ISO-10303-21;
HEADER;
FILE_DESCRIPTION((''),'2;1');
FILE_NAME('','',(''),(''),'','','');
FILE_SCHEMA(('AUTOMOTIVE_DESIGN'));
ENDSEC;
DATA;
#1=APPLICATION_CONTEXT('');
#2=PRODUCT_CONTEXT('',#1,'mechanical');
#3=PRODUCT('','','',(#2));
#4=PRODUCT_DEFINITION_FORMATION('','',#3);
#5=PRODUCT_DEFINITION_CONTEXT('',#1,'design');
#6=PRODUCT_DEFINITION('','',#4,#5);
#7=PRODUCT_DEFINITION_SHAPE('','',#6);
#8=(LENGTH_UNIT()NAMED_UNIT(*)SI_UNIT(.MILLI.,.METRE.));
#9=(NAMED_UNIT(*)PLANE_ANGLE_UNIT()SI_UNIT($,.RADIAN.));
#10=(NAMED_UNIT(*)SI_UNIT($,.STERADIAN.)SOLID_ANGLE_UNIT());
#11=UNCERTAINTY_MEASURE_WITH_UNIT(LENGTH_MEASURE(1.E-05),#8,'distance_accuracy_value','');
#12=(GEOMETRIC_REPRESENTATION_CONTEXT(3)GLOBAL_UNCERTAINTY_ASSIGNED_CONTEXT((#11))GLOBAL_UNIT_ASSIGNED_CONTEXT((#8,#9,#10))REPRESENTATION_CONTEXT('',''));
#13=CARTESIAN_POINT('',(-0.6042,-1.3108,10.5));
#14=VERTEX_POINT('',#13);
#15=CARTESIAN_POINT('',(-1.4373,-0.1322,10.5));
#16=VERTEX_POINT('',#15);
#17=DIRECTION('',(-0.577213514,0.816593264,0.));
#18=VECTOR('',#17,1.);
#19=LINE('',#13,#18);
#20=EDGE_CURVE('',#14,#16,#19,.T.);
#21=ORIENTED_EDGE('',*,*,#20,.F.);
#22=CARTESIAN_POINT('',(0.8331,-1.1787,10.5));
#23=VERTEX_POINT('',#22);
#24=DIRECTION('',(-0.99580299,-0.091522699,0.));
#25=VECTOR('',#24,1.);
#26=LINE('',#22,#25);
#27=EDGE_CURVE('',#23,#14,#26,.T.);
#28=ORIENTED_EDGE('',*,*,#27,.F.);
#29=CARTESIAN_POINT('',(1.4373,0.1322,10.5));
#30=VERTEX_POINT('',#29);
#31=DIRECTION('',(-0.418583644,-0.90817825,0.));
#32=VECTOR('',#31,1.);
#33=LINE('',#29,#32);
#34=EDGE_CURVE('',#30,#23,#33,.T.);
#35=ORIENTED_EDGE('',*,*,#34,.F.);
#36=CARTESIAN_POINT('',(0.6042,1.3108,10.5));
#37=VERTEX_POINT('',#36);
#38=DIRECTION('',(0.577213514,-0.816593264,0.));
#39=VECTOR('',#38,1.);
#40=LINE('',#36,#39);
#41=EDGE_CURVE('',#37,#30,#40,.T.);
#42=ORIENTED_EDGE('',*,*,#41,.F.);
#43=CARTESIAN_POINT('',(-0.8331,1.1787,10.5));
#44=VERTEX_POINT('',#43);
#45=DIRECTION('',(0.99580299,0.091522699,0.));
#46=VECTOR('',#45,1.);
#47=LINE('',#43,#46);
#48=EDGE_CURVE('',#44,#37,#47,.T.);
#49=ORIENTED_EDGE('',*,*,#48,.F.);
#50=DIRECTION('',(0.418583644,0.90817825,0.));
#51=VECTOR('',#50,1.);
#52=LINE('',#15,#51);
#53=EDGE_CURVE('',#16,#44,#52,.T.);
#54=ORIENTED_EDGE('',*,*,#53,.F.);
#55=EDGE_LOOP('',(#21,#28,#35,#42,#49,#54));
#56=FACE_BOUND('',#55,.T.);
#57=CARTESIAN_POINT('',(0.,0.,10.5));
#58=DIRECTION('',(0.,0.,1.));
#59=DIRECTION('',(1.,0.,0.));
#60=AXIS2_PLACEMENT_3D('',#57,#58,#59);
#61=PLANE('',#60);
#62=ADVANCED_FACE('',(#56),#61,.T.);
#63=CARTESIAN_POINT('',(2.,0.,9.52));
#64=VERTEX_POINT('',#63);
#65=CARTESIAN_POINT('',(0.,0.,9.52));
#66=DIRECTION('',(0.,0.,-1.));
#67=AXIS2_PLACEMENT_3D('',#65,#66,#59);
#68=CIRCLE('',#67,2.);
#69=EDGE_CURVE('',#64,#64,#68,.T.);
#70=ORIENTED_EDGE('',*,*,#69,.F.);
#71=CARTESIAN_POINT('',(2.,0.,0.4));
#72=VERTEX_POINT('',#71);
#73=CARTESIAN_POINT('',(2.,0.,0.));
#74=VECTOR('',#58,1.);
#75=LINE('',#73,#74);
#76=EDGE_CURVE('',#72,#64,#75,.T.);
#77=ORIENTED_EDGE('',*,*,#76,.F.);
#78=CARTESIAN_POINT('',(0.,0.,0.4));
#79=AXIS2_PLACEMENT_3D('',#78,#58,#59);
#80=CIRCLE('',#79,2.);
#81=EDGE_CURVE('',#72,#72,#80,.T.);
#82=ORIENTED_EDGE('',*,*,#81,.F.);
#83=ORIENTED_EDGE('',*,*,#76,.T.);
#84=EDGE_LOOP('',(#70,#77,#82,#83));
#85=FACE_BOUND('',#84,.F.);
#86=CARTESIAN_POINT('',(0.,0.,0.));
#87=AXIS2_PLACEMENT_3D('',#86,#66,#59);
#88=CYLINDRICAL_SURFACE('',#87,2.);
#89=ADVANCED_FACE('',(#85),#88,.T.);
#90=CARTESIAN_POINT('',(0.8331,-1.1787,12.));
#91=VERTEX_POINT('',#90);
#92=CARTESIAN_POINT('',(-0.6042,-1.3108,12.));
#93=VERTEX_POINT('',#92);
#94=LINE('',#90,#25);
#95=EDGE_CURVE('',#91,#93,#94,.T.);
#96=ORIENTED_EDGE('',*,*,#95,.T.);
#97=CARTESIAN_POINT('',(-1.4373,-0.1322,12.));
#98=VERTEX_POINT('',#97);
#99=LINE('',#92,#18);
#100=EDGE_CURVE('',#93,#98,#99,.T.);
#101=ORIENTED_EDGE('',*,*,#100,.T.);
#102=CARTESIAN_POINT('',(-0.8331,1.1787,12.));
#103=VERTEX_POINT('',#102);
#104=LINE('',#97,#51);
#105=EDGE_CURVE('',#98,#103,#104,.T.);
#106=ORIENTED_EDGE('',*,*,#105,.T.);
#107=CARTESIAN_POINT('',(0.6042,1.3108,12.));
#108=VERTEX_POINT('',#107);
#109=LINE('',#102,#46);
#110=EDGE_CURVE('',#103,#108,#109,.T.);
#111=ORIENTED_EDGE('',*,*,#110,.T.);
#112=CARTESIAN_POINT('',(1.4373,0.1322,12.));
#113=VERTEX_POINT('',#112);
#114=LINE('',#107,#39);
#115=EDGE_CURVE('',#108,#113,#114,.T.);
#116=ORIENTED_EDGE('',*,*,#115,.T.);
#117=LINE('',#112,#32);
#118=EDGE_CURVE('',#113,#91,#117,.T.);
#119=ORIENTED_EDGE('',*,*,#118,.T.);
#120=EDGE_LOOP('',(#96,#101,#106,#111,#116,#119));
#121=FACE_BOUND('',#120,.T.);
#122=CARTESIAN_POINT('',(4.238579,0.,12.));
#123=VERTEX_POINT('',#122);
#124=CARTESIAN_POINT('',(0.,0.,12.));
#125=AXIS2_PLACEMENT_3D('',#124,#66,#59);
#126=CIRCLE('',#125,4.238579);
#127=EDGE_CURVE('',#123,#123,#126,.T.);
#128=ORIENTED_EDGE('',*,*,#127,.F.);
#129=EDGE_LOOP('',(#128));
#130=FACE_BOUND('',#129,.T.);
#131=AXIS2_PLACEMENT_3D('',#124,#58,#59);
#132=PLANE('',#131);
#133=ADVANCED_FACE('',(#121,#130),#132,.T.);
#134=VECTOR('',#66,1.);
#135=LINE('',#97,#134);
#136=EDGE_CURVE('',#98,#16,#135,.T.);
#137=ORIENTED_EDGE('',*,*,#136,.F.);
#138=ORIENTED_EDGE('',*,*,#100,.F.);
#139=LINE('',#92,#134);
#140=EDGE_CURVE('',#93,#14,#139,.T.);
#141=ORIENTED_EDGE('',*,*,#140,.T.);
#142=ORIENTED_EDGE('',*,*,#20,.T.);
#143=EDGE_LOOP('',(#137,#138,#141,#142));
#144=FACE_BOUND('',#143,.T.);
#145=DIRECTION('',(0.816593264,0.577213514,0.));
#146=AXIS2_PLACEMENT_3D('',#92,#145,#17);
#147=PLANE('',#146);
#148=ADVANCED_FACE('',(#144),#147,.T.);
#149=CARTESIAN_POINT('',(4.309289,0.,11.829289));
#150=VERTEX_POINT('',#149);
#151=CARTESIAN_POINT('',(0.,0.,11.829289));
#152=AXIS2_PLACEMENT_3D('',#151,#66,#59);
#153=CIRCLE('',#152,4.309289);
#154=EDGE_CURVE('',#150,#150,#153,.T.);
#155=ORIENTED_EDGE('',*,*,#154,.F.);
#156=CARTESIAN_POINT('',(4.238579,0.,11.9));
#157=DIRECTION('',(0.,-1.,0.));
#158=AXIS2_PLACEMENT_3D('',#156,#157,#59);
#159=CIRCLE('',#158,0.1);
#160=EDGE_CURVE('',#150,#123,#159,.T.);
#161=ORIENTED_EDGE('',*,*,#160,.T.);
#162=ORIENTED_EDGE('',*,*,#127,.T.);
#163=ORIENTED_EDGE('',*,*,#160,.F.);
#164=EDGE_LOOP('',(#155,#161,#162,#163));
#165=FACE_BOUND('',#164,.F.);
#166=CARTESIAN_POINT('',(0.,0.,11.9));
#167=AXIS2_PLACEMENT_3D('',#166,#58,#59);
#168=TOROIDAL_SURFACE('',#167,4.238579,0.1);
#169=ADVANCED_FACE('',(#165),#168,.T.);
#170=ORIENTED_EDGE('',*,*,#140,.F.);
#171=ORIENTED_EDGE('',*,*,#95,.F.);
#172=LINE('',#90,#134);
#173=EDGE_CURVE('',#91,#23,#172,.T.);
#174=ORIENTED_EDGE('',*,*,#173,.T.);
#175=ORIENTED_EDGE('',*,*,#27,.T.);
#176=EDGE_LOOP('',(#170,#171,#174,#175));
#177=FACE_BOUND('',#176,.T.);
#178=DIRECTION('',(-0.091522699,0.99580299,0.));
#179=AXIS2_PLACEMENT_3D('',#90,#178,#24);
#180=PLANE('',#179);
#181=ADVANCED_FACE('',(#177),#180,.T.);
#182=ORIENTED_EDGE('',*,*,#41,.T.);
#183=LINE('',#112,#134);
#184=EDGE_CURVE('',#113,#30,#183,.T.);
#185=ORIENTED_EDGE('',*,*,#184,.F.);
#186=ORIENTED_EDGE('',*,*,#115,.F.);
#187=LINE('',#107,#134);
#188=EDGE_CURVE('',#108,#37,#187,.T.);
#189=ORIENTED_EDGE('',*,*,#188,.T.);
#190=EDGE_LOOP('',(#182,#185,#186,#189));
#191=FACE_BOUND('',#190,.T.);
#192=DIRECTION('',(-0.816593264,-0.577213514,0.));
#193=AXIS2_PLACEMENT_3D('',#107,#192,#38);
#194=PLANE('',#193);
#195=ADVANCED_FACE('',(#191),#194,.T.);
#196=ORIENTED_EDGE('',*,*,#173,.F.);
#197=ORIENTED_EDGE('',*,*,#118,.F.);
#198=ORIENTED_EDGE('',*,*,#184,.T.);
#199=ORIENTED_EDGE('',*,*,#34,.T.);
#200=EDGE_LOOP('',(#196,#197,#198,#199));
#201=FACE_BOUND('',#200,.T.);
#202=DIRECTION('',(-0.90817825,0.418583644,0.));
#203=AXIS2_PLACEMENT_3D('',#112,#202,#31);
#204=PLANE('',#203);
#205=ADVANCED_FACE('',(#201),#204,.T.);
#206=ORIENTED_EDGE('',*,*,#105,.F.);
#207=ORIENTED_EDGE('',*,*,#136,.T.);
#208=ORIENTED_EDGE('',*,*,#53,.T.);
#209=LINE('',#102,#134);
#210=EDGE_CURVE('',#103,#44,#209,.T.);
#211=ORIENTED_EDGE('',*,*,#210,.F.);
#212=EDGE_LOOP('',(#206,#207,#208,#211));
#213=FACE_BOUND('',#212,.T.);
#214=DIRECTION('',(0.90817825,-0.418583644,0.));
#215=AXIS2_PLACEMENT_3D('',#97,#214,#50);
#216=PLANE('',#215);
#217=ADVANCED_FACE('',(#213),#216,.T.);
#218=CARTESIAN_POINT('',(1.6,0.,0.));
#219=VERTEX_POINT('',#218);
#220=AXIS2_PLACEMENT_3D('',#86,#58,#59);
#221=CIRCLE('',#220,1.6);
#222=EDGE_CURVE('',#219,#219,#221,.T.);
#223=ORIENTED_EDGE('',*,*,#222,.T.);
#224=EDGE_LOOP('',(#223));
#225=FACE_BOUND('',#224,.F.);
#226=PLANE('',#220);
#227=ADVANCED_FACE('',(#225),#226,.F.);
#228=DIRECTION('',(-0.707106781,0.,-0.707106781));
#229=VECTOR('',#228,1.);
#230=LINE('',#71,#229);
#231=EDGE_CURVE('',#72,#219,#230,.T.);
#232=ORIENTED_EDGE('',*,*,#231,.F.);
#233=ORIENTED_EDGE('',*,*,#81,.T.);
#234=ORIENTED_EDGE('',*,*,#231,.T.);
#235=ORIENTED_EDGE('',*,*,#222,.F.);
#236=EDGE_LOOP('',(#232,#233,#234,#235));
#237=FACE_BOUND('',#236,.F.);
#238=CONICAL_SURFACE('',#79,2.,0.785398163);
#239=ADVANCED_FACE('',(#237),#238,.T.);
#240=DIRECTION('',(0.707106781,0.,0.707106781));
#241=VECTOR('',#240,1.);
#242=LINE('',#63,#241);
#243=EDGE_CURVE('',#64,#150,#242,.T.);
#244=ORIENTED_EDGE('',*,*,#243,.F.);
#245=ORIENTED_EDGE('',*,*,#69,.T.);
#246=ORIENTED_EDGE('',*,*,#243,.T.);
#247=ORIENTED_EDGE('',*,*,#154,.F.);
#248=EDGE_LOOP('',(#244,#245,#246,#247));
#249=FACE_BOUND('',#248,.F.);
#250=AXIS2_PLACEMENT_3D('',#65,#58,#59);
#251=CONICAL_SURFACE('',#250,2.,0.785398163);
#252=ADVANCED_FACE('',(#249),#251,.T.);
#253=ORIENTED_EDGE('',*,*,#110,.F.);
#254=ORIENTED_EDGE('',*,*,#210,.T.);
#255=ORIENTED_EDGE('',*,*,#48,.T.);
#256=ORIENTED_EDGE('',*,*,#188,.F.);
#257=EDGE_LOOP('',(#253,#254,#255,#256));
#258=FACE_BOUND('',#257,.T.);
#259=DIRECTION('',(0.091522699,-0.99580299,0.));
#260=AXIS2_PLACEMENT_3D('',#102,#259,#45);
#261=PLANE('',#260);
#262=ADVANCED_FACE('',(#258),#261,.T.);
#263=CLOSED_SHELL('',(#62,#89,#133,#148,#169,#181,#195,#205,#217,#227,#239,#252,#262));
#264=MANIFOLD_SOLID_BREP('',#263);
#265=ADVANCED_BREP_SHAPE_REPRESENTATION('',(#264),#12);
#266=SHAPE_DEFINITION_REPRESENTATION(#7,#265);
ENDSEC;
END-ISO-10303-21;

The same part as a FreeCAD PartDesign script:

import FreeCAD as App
import Part
import Sketcher
from FreeCAD import Vector
Q = App.Units.Quantity


def edges_at(feature, points):
    """Names of the edges that pass closest to the given points."""
    edges = feature.Shape.Edges
    near = lambda p: min(range(len(edges)), key=lambda i: edges[i].distToShape(Part.Vertex(*p))[0])
    return sorted({f"Edge{near(p) + 1}" for p in points})

doc = App.newDocument("Part")
params = doc.addObject("Spreadsheet::Sheet", "Params")
for row, (alias, value) in enumerate([
    ("sketch1_diameter", "4 mm"),
    ("pad1_length", "9.52 mm"),
    ("sketch2_diameter", "4 mm"),
    ("pad2_length", "2.48 mm"),
    ("pad2_taper", "45 deg"),
    ("pocket1_length", "1.5 mm"),
    ("chamfer_size", "0.4 mm"),
    ("fillet_radius", "0.1 mm"),
], start=1):
    params.set(f"A{row}", alias)
    params.set(f"B{row}", "=" + value)
    params.setAlias(f"B{row}", alias)

body = doc.addObject("PartDesign::Body", "Body")

# Sketch on XY plane
sketch1 = body.newObject("Sketcher::SketchObject", "Sketch")
sketch1.AttachmentSupport = (doc.getObject("XY_Plane"), [""])
sketch1.MapMode = "FlatFace"
sketch1.addGeometry(Part.Circle(Vector(0, 0, 0), Vector(0, 0, 1), 2), False)
sketch1.addConstraint([
    Sketcher.Constraint("Coincident", 0, 3, -1, 1),
    Sketcher.Constraint("Diameter", 0, Q("4 mm")),
])
sketch1.setExpression("Constraints[1]", "Params.sketch1_diameter")
pad1 = body.newObject("PartDesign::Pad", "Pad")
pad1.Profile = sketch1
pad1.setExpression("Length", "Params.pad1_length")

# Sketch on XY plane
sketch2 = body.newObject("Sketcher::SketchObject", "Sketch001")
sketch2.AttachmentSupport = (doc.getObject("XY_Plane"), [""])
sketch2.MapMode = "FlatFace"
sketch2.AttachmentOffset = App.Placement(Vector(0, 0, 9.52), App.Rotation())
sketch2.addGeometry(Part.Circle(Vector(0, 0, 0), Vector(0, 0, 1), 2), False)
sketch2.addConstraint([
    Sketcher.Constraint("Coincident", 0, 3, -1, 1),
    Sketcher.Constraint("Diameter", 0, Q("4 mm")),
])
sketch2.setExpression("Constraints[1]", "Params.sketch2_diameter")
pad2 = body.newObject("PartDesign::Pad", "Pad001")
pad2.Profile = sketch2
pad2.setExpression("Length", "Params.pad2_length")
pad2.setExpression("TaperAngle", "Params.pad2_taper")

# Sketch on XY plane
sketch3 = body.newObject("Sketcher::SketchObject", "Sketch002")
sketch3.AttachmentSupport = (doc.getObject("XY_Plane"), [""])
sketch3.MapMode = "FlatFace"
sketch3.AttachmentOffset = App.Placement(Vector(0, 0, 12), App.Rotation())
sketch3.addGeometry([
    Part.LineSegment(Vector(1.4, 0.1, 0), Vector(0.6, 1.3, 0)),  # 0
    Part.LineSegment(Vector(0.6, 1.3, 0), Vector(-0.8, 1.2, 0)),  # 1
    Part.LineSegment(Vector(-0.8, 1.2, 0), Vector(-1.4, -0.1, 0)),  # 2
    Part.LineSegment(Vector(-1.4, -0.1, 0), Vector(-0.6, -1.3, 0)),  # 3
    Part.LineSegment(Vector(-0.6, -1.3, 0), Vector(0.8, -1.2, 0)),  # 4
    Part.LineSegment(Vector(0.8, -1.2, 0), Vector(1.4, 0.1, 0)),  # 5
], False)
sketch3.addConstraint([
    Sketcher.Constraint("Coincident", 0, 2, 1, 1),
    Sketcher.Constraint("Coincident", 1, 2, 2, 1),
    Sketcher.Constraint("Coincident", 2, 2, 3, 1),
    Sketcher.Constraint("Coincident", 3, 2, 4, 1),
    Sketcher.Constraint("Coincident", 4, 2, 5, 1),
    Sketcher.Constraint("Coincident", 5, 2, 0, 1),
    Sketcher.Constraint("Symmetric", 0, 2, 3, 2, -1, 1),
    Sketcher.Constraint("Symmetric", 1, 2, 4, 2, -1, 1),
    Sketcher.Constraint("Symmetric", 2, 2, 5, 2, -1, 1),
    Sketcher.Constraint("Equal", 0, 1),
    Sketcher.Constraint("Equal", 1, 2),
    Sketcher.Constraint("DistanceX", 1, 2, -1, 1, Q("0.833 mm")),
    Sketcher.Constraint("DistanceY", 1, 2, 0, 2, Q("0.132 mm")),
    Sketcher.Constraint("DistanceY", 2, 2, 1, 2, Q("1.311 mm")),
    Sketcher.Constraint("DistanceX", 2, 2, 3, 2, Q("0.833 mm")),
])
pocket1 = body.newObject("PartDesign::Pocket", "Pocket")
pocket1.Profile = sketch3
pocket1.setExpression("Length", "Params.pocket1_length")
doc.recompute()

chamfer = body.newObject("PartDesign::Chamfer", "Chamfer")
chamfer.Base = (pocket1, edges_at(pocket1, [(-2, 0, 0)]))
chamfer.setExpression("Size", "Params.chamfer_size")
doc.recompute()

fillet = body.newObject("PartDesign::Fillet", "Fillet")
fillet.Base = (chamfer, edges_at(chamfer, [(-4.48, 0, 12)]))
fillet.setExpression("Radius", "Params.fillet_radius")

doc.recompute()
